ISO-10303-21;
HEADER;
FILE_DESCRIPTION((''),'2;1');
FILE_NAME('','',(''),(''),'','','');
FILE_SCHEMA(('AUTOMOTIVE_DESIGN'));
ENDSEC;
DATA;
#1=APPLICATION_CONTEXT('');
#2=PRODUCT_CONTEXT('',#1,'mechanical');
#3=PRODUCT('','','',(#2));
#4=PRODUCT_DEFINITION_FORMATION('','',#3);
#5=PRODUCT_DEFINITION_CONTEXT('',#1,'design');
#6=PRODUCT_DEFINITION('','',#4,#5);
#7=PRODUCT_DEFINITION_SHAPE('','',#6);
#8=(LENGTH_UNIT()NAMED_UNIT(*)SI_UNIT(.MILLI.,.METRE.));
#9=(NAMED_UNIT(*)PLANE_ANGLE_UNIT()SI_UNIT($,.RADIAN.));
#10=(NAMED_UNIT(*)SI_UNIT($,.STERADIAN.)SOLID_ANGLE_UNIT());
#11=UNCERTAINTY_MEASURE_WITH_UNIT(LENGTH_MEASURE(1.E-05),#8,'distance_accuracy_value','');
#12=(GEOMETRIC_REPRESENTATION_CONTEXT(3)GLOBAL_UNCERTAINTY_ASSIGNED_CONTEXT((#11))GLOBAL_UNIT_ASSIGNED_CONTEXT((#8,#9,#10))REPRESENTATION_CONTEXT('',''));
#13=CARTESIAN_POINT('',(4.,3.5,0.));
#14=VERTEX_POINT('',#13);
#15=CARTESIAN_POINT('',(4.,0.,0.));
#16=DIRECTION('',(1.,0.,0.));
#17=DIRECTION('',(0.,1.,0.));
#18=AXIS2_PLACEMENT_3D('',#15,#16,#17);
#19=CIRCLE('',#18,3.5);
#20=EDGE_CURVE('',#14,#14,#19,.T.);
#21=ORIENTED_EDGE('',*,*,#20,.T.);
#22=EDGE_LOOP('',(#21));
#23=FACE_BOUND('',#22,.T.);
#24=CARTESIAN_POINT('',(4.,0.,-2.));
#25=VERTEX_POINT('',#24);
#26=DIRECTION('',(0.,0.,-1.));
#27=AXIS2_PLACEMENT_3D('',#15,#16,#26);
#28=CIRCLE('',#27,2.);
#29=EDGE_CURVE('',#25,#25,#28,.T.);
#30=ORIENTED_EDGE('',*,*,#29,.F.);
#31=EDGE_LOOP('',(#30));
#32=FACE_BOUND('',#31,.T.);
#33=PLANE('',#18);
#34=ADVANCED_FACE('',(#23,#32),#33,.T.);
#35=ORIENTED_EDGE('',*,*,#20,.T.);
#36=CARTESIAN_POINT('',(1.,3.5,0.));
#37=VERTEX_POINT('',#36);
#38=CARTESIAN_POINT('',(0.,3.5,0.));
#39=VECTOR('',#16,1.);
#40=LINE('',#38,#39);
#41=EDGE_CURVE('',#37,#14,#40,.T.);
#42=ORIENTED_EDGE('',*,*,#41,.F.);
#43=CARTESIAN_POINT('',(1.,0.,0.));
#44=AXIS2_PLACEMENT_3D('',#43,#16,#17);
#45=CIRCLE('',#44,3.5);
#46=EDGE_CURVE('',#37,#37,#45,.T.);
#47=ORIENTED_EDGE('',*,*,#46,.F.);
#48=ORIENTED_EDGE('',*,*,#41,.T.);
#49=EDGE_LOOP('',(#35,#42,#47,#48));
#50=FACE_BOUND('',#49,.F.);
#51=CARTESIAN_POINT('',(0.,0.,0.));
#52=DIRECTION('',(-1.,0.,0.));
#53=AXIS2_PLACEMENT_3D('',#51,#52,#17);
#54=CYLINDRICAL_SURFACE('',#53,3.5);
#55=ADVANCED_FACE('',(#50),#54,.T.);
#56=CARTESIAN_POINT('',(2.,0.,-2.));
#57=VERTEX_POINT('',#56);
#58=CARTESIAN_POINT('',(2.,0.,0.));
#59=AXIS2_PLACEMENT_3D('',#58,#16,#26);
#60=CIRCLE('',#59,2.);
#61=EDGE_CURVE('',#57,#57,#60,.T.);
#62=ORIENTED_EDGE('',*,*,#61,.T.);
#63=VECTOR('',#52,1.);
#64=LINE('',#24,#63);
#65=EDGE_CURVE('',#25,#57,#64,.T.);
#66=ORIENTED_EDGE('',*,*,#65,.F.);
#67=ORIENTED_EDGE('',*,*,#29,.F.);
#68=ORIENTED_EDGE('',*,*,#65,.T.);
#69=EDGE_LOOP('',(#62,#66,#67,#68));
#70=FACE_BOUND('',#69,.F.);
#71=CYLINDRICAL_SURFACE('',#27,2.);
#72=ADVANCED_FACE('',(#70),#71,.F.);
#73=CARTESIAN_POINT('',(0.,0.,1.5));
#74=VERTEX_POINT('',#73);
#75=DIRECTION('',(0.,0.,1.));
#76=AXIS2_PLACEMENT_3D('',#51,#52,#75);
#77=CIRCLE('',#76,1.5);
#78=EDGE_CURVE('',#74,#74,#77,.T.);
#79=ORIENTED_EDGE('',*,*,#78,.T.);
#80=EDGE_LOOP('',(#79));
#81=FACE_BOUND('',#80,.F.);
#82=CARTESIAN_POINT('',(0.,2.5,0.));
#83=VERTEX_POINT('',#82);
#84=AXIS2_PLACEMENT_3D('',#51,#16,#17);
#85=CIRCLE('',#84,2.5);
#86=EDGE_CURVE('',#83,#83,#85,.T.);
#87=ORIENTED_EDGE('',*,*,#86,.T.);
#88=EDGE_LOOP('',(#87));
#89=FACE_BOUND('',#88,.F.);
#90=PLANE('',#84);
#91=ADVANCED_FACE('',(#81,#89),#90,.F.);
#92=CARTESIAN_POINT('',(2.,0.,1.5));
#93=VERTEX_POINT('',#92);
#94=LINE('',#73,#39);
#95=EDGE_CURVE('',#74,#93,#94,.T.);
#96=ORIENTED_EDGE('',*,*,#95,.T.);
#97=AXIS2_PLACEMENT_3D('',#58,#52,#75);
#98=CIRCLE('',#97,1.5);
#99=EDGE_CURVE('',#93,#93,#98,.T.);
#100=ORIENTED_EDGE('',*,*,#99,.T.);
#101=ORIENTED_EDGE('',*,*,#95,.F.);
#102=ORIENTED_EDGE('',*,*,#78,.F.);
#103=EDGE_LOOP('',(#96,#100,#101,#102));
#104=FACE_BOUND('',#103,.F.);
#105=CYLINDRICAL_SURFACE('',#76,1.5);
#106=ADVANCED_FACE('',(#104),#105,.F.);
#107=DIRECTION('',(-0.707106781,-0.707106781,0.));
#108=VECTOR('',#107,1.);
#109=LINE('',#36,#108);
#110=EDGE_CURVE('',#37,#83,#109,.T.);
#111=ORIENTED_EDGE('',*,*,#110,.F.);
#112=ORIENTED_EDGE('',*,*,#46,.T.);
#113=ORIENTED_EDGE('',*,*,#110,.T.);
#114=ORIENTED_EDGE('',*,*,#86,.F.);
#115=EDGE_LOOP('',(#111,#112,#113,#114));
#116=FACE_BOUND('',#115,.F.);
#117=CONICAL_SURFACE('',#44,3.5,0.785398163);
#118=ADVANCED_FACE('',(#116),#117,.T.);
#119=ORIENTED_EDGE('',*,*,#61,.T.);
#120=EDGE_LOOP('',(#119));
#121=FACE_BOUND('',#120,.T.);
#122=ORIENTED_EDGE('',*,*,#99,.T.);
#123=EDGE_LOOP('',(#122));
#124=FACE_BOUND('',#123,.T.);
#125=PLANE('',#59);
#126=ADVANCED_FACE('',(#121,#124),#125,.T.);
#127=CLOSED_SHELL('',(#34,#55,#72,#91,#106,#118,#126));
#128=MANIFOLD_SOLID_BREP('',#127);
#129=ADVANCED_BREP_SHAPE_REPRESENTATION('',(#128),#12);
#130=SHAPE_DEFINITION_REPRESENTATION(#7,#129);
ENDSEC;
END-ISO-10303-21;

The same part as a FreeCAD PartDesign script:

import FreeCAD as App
import Part
import Sketcher
Q = App.Units.Quantity


def edges_at(feature, points):
    """Names of the edges that pass closest to the given points."""
    edges = feature.Shape.Edges
    near = lambda p: min(range(len(edges)), key=lambda i: edges[i].distToShape(Part.Vertex(*p))[0])
    return sorted({f"Edge{near(p) + 1}" for p in points})

doc = App.newDocument("Part")
params = doc.addObject("Spreadsheet::Sheet", "Params")
for row, (alias, value) in enumerate([
    ("sketch1_diameter", "7 mm"),
    ("pad1_length", "4 mm"),
    ("sketch2_diameter", "4 mm"),
    ("pocket1_length", "2 mm"),
    ("sketch3_diameter", "3 mm"),
    ("pocket2_length", "2 mm"),
    ("chamfer_size", "1 mm"),
], start=1):
    params.set(f"A{row}", alias)
    params.set(f"B{row}", "=" + value)
    params.setAlias(f"B{row}", alias)

body = doc.addObject("PartDesign::Body", "Body")

# Sketch on YZ plane
sketch1 = doc.addObject("Sketcher::SketchObject", "Sketch")
body.addObject(sketch1)
sketch1.AttachmentSupport = (doc.YZ_Plane, [""])
sketch1.MapMode = "FlatFace"
sketch1.addGeometry(Part.Circle(App.Vector(0, 0, 0), App.Vector(0, 0, 1), 3.5), False)
sketch1.addConstraint([
    Sketcher.Constraint("Coincident", 0, 3, -1, 1),
    Sketcher.Constraint("Diameter", 0, Q("7 mm")),
])
sketch1.setExpression("Constraints[1]", "Params.sketch1_diameter")
pad1 = doc.addObject("PartDesign::Pad", "Pad")
body.addObject(pad1)
pad1.Profile = sketch1
pad1.setExpression("Length", "Params.pad1_length")

# Sketch on YZ plane
sketch2 = doc.addObject("Sketcher::SketchObject", "Sketch001")
body.addObject(sketch2)
sketch2.AttachmentSupport = (doc.YZ_Plane, [""])
sketch2.MapMode = "FlatFace"
sketch2.AttachmentOffset = App.Placement(App.Vector(0, 0, 4), App.Rotation())
sketch2.addGeometry(Part.Circle(App.Vector(0, 0, 0), App.Vector(0, 0, 1), 2), False)
sketch2.addConstraint([
    Sketcher.Constraint("Coincident", 0, 3, -1, 1),
    Sketcher.Constraint("Diameter", 0, Q("4 mm")),
])
sketch2.setExpression("Constraints[1]", "Params.sketch2_diameter")
pocket1 = doc.addObject("PartDesign::Pocket", "Pocket")
body.addObject(pocket1)
pocket1.Profile = sketch2
pocket1.setExpression("Length", "Params.pocket1_length")

# Sketch on YZ plane
sketch3 = doc.addObject("Sketcher::SketchObject", "Sketch002")
body.addObject(sketch3)
sketch3.AttachmentSupport = (doc.YZ_Plane, [""])
sketch3.MapMode = "FlatFace"
sketch3.addGeometry(Part.Circle(App.Vector(0, 0, 0), App.Vector(0, 0, 1), 1.5), False)
sketch3.addConstraint([
    Sketcher.Constraint("Coincident", 0, 3, -1, 1),
    Sketcher.Constraint("Diameter", 0, Q("3 mm")),
])
sketch3.setExpression("Constraints[1]", "Params.sketch3_diameter")
pocket2 = doc.addObject("PartDesign::Pocket", "Pocket001")
body.addObject(pocket2)
pocket2.Profile = sketch3
pocket2.setExpression("Length", "Params.pocket2_length")
pocket2.Reversed = True
doc.recompute()

chamfer = doc.addObject("PartDesign::Chamfer", "Chamfer")
body.addObject(chamfer)
chamfer.Base = (pocket2, edges_at(pocket2, [(0, -3.5, 0)]))
chamfer.setExpression("Size", "Params.chamfer_size")

doc.recompute()
